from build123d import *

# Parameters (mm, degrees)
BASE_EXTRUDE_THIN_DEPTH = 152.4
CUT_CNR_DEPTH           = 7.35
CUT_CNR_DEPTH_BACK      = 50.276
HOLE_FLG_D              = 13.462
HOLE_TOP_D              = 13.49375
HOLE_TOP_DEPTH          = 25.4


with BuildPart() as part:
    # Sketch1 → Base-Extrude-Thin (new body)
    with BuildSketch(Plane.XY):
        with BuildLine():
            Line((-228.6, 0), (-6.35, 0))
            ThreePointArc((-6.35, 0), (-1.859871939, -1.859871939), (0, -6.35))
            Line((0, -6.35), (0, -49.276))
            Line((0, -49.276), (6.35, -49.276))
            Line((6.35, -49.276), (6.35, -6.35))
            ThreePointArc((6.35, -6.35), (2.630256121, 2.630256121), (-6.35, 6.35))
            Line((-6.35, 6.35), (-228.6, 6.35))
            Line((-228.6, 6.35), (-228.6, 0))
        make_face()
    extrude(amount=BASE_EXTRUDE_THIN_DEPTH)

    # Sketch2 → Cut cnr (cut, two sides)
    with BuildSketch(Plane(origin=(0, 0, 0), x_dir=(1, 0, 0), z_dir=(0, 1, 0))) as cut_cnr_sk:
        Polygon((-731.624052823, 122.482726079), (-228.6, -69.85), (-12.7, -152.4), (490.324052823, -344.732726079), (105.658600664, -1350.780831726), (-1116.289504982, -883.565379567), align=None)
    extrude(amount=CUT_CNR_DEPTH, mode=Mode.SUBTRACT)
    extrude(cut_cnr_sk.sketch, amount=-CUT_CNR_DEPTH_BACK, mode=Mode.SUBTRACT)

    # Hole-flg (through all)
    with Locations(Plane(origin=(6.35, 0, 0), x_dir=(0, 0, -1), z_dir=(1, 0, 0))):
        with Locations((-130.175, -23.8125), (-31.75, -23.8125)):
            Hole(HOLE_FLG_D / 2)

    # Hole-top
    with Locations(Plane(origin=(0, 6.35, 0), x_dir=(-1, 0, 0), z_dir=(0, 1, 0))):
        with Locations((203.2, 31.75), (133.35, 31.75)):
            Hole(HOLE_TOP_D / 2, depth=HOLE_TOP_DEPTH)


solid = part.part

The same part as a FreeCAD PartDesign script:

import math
import FreeCAD as App
import Part
import Sketcher
Q = App.Units.Quantity


def add_polygon(sketch, points):
    """Adds a closed chain of lines whose ends are joined by coincident constraints."""
    first, n = sketch.GeometryCount, len(points)
    for a, b in zip(points, points[1:] + points[:1]):
        sketch.addGeometry(Part.LineSegment(App.Vector(*a, 0), App.Vector(*b, 0)), False)
    for i in range(n):
        sketch.addConstraint(Sketcher.Constraint("Coincident", first + i, 2, first + (i + 1) % n, 1))

doc = App.newDocument("Part")
params = doc.addObject("Spreadsheet::Sheet", "Params")
for row, (alias, value) in enumerate([
    ("sketch1_radius", "0.5 in"),
    ("sketch1_height", "1.69 in"),
    ("pad1_length", "6 in"),
    ("sketch3_diameter", "0.53 in"),
    ("hole_diameter", "0.53 in"),
    ("sketch4_diameter", "0.53125 in"),
    ("hole2_diameter", "0.53125 in"),
    ("hole2_depth", "1 in"),
], start=1):
    params.set(f"A{row}", alias)
    params.set(f"B{row}", "=" + value)
    params.setAlias(f"B{row}", alias)

body = doc.addObject("PartDesign::Body", "Body")

# Sketch on XY plane
sketch1 = doc.addObject("Sketcher::SketchObject", "Sketch")
body.addObject(sketch1)
sketch1.AttachmentSupport = (doc.XY_Plane, [""])
sketch1.MapMode = "FlatFace"
sketch1.addGeometry([
    Part.LineSegment(App.Vector(-229, 0, 0), App.Vector(-6, 0, 0)),  # 0
    Part.ArcOfCircle(Part.Circle(App.Vector(-6, -6, 0), App.Vector(0, 0, 1), 6), math.radians(0), math.radians(90)),  # 1
    Part.LineSegment(App.Vector(0, -6, 0), App.Vector(0, -49, 0)),  # 2
    Part.LineSegment(App.Vector(0, -49, 0), App.Vector(6, -49, 0)),  # 3
    Part.LineSegment(App.Vector(6, -49, 0), App.Vector(6, -6, 0)),  # 4
    Part.ArcOfCircle(Part.Circle(App.Vector(-6, -6, 0), App.Vector(0, 0, 1), 13), math.radians(0), math.radians(90)),  # 5
    Part.LineSegment(App.Vector(-6, 6, 0), App.Vector(-229, 6, 0)),  # 6
    Part.LineSegment(App.Vector(-229, 6, 0), App.Vector(-229, 0, 0)),  # 7
], False)
sketch1.addConstraint([
    Sketcher.Constraint("Tangent", 0, 2, 1, 2),
    Sketcher.Constraint("Tangent", 1, 1, 2, 1),
    Sketcher.Constraint("Coincident", 2, 2, 3, 1),
    Sketcher.Constraint("Coincident", 3, 2, 4, 1),
    Sketcher.Constraint("Tangent", 4, 2, 5, 1),
    Sketcher.Constraint("Tangent", 5, 2, 6, 1),
    Sketcher.Constraint("Coincident", 6, 2, 7, 1),
    Sketcher.Constraint("Coincident", 7, 2, 0, 1),
    Sketcher.Constraint("Horizontal", 0),
    Sketcher.Constraint("Vertical", 2),
    Sketcher.Constraint("Horizontal", 3),
    Sketcher.Constraint("Vertical", 4),
    Sketcher.Constraint("Horizontal", 6),
    Sketcher.Constraint("Vertical", 7),
    Sketcher.Constraint("Coincident", 5, 3, 1, 3),
    Sketcher.Constraint("Symmetric", 4, 2, 5, 2, -1, 1),
    Sketcher.Constraint("PointOnObject", 0, 2, -1),
    Sketcher.Constraint("Radius", 5, Q("0.5 in")),
    Sketcher.Constraint("DistanceX", 6, 2, -1, 1, Q("9 in")),
    Sketcher.Constraint("DistanceY", 2, 2, 2, 1, Q("1.69 in")),
])
sketch1.setExpression("Constraints[17]", "Params.sketch1_radius")
sketch1.setExpression("Constraints[19]", "Params.sketch1_height")
pad1 = doc.addObject("PartDesign::Pad", "Pad")
body.addObject(pad1)
pad1.Profile = sketch1
pad1.setExpression("Length", "Params.pad1_length")

# Sketch on XZ plane
sketch2 = doc.addObject("Sketcher::SketchObject", "Sketch001")
body.addObject(sketch2)
sketch2.AttachmentSupport = (doc.XZ_Plane, [""])
sketch2.MapMode = "FlatFace"
add_polygon(sketch2, [(490, 345), (-732, -122), (-1116, 884), (106, 1351)])  # lines 0-3
sketch2.addConstraint([
    Sketcher.Constraint("Perpendicular", 0, 1),
    Sketcher.Constraint("Perpendicular", 1, 2),
    Sketcher.Constraint("Perpendicular", 2, 3),
    Sketcher.Constraint("DistanceX", -1, 1, 2, 2, Q("105.658601 mm")),
    Sketcher.Constraint("DistanceY", -1, 1, 1, 2, Q("883.56538 mm")),
    Sketcher.Constraint("DistanceY", -1, 1, 2, 2, Q("1350.780832 mm")),
    Sketcher.Constraint("Distance", 0, Q("1308.223013 mm")),
    Sketcher.Constraint("Distance", 1, Q("1077.079524 mm")),
])
pocket1 = doc.addObject("PartDesign::Pocket", "Pocket")
body.addObject(pocket1)
pocket1.Profile = sketch2
pocket1.Type = "ThroughAll"
pocket1.Midplane = True

# Sketch on YZ plane
sketch3 = doc.addObject("Sketcher::SketchObject", "Sketch002")
body.addObject(sketch3)
sketch3.AttachmentSupport = (doc.YZ_Plane, [""])
sketch3.MapMode = "FlatFace"
sketch3.AttachmentOffset = App.Placement(App.Vector(0, 0, 0.25 * 25.4), App.Rotation())
sketch3.addGeometry([
    Part.Circle(App.Vector(-24, 130, 0), App.Vector(0, 0, 1), 7),
    Part.Circle(App.Vector(-24, 32, 0), App.Vector(0, 0, 1), 7),
], False)
sketch3.addConstraint([
    Sketcher.Constraint("Equal", 0, 1),
    Sketcher.Constraint("Vertical", 0, 3, 1, 3),
    Sketcher.Constraint("Diameter", 0, Q("0.53 in")),
    Sketcher.Constraint("DistanceY", -1, 1, 1, 3, Q("1.25 in")),
    Sketcher.Constraint("DistanceX", 0, 3, -1, 1, Q("0.9375 in")),
    Sketcher.Constraint("DistanceY", -1, 1, 0, 3, Q("5.125 in")),
])
sketch3.setExpression("Constraints[2]", "Params.sketch3_diameter")
doc.recompute()
hole = doc.addObject("PartDesign::Hole", "Hole")
body.addObject(hole)
hole.Profile = sketch3
hole.ThreadType = "None"
hole.setExpression("Diameter", "Params.hole_diameter")
hole.DepthType = "ThroughAll"

# Sketch on XZ plane
sketch4 = doc.addObject("Sketcher::SketchObject", "Sketch003")
body.addObject(sketch4)
sketch4.AttachmentSupport = (doc.XZ_Plane, [""])
sketch4.MapMode = "FlatFace"
sketch4.AttachmentOffset = App.Placement(App.Vector(0, 0, -0.25 * 25.4), App.Rotation())
sketch4.addGeometry([
    Part.Circle(App.Vector(-203, 32, 0), App.Vector(0, 0, 1), 7),
    Part.Circle(App.Vector(-133, 32, 0), App.Vector(0, 0, 1), 7),
], False)
sketch4.addConstraint([
    Sketcher.Constraint("Equal", 0, 1),
    Sketcher.Constraint("Horizontal", 0, 3, 1, 3),
    Sketcher.Constraint("Diameter", 0, Q("0.53125 in")),
    Sketcher.Constraint("DistanceX", 0, 3, -1, 1, Q("8 in")),
    Sketcher.Constraint("DistanceY", -1, 1, 0, 3, Q("1.25 in")),
    Sketcher.Constraint("DistanceX", 1, 3, -1, 1, Q("5.25 in")),
])
sketch4.setExpression("Constraints[2]", "Params.sketch4_diameter")
doc.recompute()
hole2 = doc.addObject("PartDesign::Hole", "Hole001")
body.addObject(hole2)
hole2.Profile = sketch4
hole2.ThreadType = "None"
hole2.setExpression("Diameter", "Params.hole2_diameter")
hole2.DepthType = "Dimension"
hole2.setExpression("Depth", "Params.hole2_depth")
hole2.DrillPoint = "Flat"
hole2.Reversed = True

doc.recompute()
